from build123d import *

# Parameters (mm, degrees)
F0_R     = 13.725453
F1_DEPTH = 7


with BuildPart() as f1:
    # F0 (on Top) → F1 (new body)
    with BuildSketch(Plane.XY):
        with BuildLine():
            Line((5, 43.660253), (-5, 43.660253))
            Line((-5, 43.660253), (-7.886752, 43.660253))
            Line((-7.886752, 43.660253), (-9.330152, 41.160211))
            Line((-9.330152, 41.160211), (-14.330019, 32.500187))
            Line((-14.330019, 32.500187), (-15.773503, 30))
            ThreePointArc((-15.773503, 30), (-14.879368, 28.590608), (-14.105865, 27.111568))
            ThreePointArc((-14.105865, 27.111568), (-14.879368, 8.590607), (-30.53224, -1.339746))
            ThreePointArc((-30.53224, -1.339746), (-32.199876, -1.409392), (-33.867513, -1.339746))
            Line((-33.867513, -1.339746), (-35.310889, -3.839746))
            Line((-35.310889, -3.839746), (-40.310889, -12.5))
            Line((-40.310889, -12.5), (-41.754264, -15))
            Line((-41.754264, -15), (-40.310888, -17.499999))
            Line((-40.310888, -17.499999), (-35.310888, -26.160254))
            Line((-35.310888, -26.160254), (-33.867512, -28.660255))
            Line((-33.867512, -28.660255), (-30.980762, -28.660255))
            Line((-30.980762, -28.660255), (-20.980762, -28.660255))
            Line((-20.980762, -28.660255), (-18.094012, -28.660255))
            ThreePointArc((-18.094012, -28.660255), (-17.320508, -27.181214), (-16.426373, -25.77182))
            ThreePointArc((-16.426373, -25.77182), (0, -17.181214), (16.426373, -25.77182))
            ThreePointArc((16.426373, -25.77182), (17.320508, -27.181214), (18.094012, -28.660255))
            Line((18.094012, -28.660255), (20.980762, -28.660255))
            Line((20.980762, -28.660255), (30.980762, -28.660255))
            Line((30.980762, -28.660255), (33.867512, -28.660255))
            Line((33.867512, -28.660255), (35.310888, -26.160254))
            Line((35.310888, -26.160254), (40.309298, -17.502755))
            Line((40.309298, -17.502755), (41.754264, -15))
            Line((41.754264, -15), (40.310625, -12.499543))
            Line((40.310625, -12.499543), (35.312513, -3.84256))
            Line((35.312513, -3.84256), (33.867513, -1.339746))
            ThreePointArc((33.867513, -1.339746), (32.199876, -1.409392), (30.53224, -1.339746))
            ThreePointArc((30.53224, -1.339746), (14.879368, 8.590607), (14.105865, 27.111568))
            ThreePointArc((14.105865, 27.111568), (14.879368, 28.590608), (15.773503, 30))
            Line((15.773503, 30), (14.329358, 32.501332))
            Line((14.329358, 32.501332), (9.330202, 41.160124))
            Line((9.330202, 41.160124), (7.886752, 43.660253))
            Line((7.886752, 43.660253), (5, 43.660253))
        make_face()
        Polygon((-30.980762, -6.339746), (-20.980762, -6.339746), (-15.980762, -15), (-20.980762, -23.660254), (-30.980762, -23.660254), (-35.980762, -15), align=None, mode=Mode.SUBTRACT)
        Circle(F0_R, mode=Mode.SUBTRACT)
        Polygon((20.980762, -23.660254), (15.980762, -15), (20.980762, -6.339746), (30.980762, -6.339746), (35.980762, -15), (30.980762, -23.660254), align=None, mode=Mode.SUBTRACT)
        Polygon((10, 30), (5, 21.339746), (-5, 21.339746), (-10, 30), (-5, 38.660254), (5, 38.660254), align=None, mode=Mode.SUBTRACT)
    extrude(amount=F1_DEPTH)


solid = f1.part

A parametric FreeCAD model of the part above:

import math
import FreeCAD as App
import Part
import Sketcher
from FreeCAD import Vector
Q = App.Units.Quantity

doc = App.newDocument("Part")
body = doc.addObject("PartDesign::Body", "Body")

sketch1 = doc.addObject("Sketcher::SketchObject", "Sketch")
body.addObject(sketch1)
sketch1.AttachmentSupport = (doc.XY_Plane, [""])
sketch1.MapMode = "FlatFace"
sketch1.addGeometry([
    Part.LineSegment(Vector(-7.886752, 43.660253, 0), Vector(-9.330152, 41.160211, 0)),
    Part.LineSegment(Vector(-9.330152, 41.160211, 0), Vector(-14.330019, 32.500187, 0)),
    Part.LineSegment(Vector(-14.330019, 32.500187, 0), Vector(-15.773503, 30, 0)),
    Part.ArcOfCircle(Part.Circle(Vector(-32.199731, 18.590685, 0), Vector(0, 0, 1), 19.999836), math.radians(25.216994), math.radians(34.783036)),
    Part.ArcOfCircle(Part.Circle(Vector(-32.199876, 18.590607, 0), Vector(0, 0, 1), 20), math.radians(-85.217022), math.radians(25.217019)),
    Part.ArcOfCircle(Part.Circle(Vector(-32.199877, 18.590766, 0), Vector(0, 0, 1), 20.000158), math.radians(-94.782942), math.radians(-85.217058)),
    Part.LineSegment(Vector(-33.867513, -1.339746, 0), Vector(-35.310889, -3.839746, 0)),
    Part.LineSegment(Vector(-35.310889, -3.839746, 0), Vector(-40.310889, -12.5, 0)),
    Part.LineSegment(Vector(-40.310889, -12.5, 0), Vector(-41.754264, -15, 0)),
    Part.LineSegment(Vector(-41.754264, -15, 0), Vector(-40.310888, -17.499999, 0)),
    Part.LineSegment(Vector(-40.310888, -17.499999, 0), Vector(-35.310888, -26.160254, 0)),
    Part.LineSegment(Vector(-35.310888, -26.160254, 0), Vector(-33.867512, -28.660255, 0)),
    Part.LineSegment(Vector(-33.867512, -28.660255, 0), Vector(-18.094012, -28.660255, 0)),
    Part.ArcOfCircle(Part.Circle(Vector(0.000059, -37.18125, 0), Vector(0, 0, 1), 20.000069), math.radians(145.217026), math.radians(154.782966)),
    Part.ArcOfCircle(Part.Circle(Vector(0, -37.181214, 0), Vector(0, 0, 1), 20), math.radians(34.782986), math.radians(145.217014)),
    Part.ArcOfCircle(Part.Circle(Vector(-0.000059, -37.18125, 0), Vector(0, 0, 1), 20.000069), math.radians(25.217034), math.radians(34.782974)),
    Part.LineSegment(Vector(18.094012, -28.660255, 0), Vector(33.867512, -28.660255, 0)),
    Part.LineSegment(Vector(33.867512, -28.660255, 0), Vector(35.310888, -26.160254, 0)),
    Part.LineSegment(Vector(35.310888, -26.160254, 0), Vector(40.309298, -17.502755, 0)),
    Part.LineSegment(Vector(40.309298, -17.502755, 0), Vector(41.754264, -15, 0)),
    Part.LineSegment(Vector(41.754264, -15, 0), Vector(40.310625, -12.499543, 0)),
    Part.LineSegment(Vector(40.310625, -12.499543, 0), Vector(35.312513, -3.84256, 0)),
    Part.LineSegment(Vector(35.312513, -3.84256, 0), Vector(33.867513, -1.339746, 0)),
    Part.ArcOfCircle(Part.Circle(Vector(32.199877, 18.590766, 0), Vector(0, 0, 1), 20.000158), math.radians(-94.782942), math.radians(-85.217058)),
    Part.ArcOfCircle(Part.Circle(Vector(32.199876, 18.590607, 0), Vector(0, 0, 1), 20), math.radians(154.782981), math.radians(265.217022)),
    Part.ArcOfCircle(Part.Circle(Vector(32.199731, 18.590685, 0), Vector(0, 0, 1), 19.999836), math.radians(145.216964), math.radians(154.783006)),
    Part.LineSegment(Vector(15.773503, 30, 0), Vector(14.329358, 32.501332, 0)),
    Part.LineSegment(Vector(14.329358, 32.501332, 0), Vector(9.330202, 41.160124, 0)),
    Part.LineSegment(Vector(9.330202, 41.160124, 0), Vector(7.886752, 43.660253, 0)),
    Part.LineSegment(Vector(7.886752, 43.660253, 0), Vector(-7.886752, 43.660253, 0)),
    Part.LineSegment(Vector(-35.980762, -15, 0), Vector(-30.980762, -6.339746, 0)),
    Part.LineSegment(Vector(-30.980762, -6.339746, 0), Vector(-20.980762, -6.339746, 0)),
    Part.LineSegment(Vector(-20.980762, -6.339746, 0), Vector(-15.980762, -15, 0)),
    Part.LineSegment(Vector(-15.980762, -15, 0), Vector(-20.980762, -23.660254, 0)),
    Part.LineSegment(Vector(-20.980762, -23.660254, 0), Vector(-30.980762, -23.660254, 0)),
    Part.LineSegment(Vector(-30.980762, -23.660254, 0), Vector(-35.980762, -15, 0)),
    Part.LineSegment(Vector(30.980762, -23.660254, 0), Vector(20.980762, -23.660254, 0)),
    Part.LineSegment(Vector(20.980762, -23.660254, 0), Vector(15.980762, -15, 0)),
    Part.LineSegment(Vector(15.980762, -15, 0), Vector(20.980762, -6.339746, 0)),
    Part.LineSegment(Vector(20.980762, -6.339746, 0), Vector(30.980762, -6.339746, 0)),
    Part.LineSegment(Vector(30.980762, -6.339746, 0), Vector(35.980762, -15, 0)),
    Part.LineSegment(Vector(35.980762, -15, 0), Vector(30.980762, -23.660254, 0)),
    Part.Circle(Vector(0, 0, 0), Vector(0, 0, 1), 13.725453),
    Part.LineSegment(Vector(5, 38.660254, 0), Vector(10, 30, 0)),
    Part.LineSegment(Vector(10, 30, 0), Vector(5, 21.339746, 0)),
    Part.LineSegment(Vector(5, 21.339746, 0), Vector(-5, 21.339746, 0)),
    Part.LineSegment(Vector(-5, 21.339746, 0), Vector(-10, 30, 0)),
    Part.LineSegment(Vector(-10, 30, 0), Vector(-5, 38.660254, 0)),
    Part.LineSegment(Vector(-5, 38.660254, 0), Vector(5, 38.660254, 0)),
], False)
sketch1.addConstraint([
    Sketcher.Constraint("Coincident", 0, 2, 1, 1),
    Sketcher.Constraint("Coincident", 1, 2, 2, 1),
    Sketcher.Constraint("Coincident", 2, 2, 3, 2),
    Sketcher.Constraint("Coincident", 3, 1, 4, 2),
    Sketcher.Constraint("Coincident", 4, 1, 5, 2),
    Sketcher.Constraint("Coincident", 5, 1, 6, 1),
    Sketcher.Constraint("Coincident", 6, 2, 7, 1),
    Sketcher.Constraint("Coincident", 7, 2, 8, 1),
    Sketcher.Constraint("Coincident", 8, 2, 9, 1),
    Sketcher.Constraint("Coincident", 9, 2, 10, 1),
    Sketcher.Constraint("Coincident", 10, 2, 11, 1),
    Sketcher.Constraint("Coincident", 11, 2, 12, 1),
    Sketcher.Constraint("Coincident", 12, 2, 13, 2),
    Sketcher.Constraint("Coincident", 13, 1, 14, 2),
    Sketcher.Constraint("Coincident", 14, 1, 15, 2),
    Sketcher.Constraint("Coincident", 15, 1, 16, 1),
    Sketcher.Constraint("Coincident", 16, 2, 17, 1),
    Sketcher.Constraint("Coincident", 17, 2, 18, 1),
    Sketcher.Constraint("Coincident", 18, 2, 19, 1),
    Sketcher.Constraint("Coincident", 19, 2, 20, 1),
    Sketcher.Constraint("Coincident", 20, 2, 21, 1),
    Sketcher.Constraint("Coincident", 21, 2, 22, 1),
    Sketcher.Constraint("Coincident", 22, 2, 23, 2),
    Sketcher.Constraint("Coincident", 23, 1, 24, 2),
    Sketcher.Constraint("Coincident", 24, 1, 25, 2),
    Sketcher.Constraint("Coincident", 25, 1, 26, 1),
    Sketcher.Constraint("Coincident", 26, 2, 27, 1),
    Sketcher.Constraint("Coincident", 27, 2, 28, 1),
    Sketcher.Constraint("Coincident", 28, 2, 29, 1),
    Sketcher.Constraint("Coincident", 29, 2, 0, 1),
    Sketcher.Constraint("Coincident", 30, 2, 31, 1),
    Sketcher.Constraint("Coincident", 31, 2, 32, 1),
    Sketcher.Constraint("Coincident", 32, 2, 33, 1),
    Sketcher.Constraint("Coincident", 33, 2, 34, 1),
    Sketcher.Constraint("Coincident", 34, 2, 35, 1),
    Sketcher.Constraint("Coincident", 35, 2, 30, 1),
    Sketcher.Constraint("Coincident", 36, 2, 37, 1),
    Sketcher.Constraint("Coincident", 37, 2, 38, 1),
    Sketcher.Constraint("Coincident", 38, 2, 39, 1),
    Sketcher.Constraint("Coincident", 39, 2, 40, 1),
    Sketcher.Constraint("Coincident", 40, 2, 41, 1),
    Sketcher.Constraint("Coincident", 41, 2, 36, 1),
    Sketcher.Constraint("Coincident", 43, 2, 44, 1),
    Sketcher.Constraint("Coincident", 44, 2, 45, 1),
    Sketcher.Constraint("Coincident", 45, 2, 46, 1),
    Sketcher.Constraint("Coincident", 46, 2, 47, 1),
    Sketcher.Constraint("Coincident", 47, 2, 48, 1),
    Sketcher.Constraint("Coincident", 48, 2, 43, 1),
    Sketcher.Constraint("Horizontal", 12),
    Sketcher.Constraint("Horizontal", 16),
    Sketcher.Constraint("Horizontal", 29),
    Sketcher.Constraint("Horizontal", 31),
    Sketcher.Constraint("Horizontal", 34),
    Sketcher.Constraint("Horizontal", 36),
    Sketcher.Constraint("Horizontal", 39),
    Sketcher.Constraint("Horizontal", 45),
    Sketcher.Constraint("Horizontal", 48),
    Sketcher.Constraint("Coincident", 42, 3, -1, 1),
    Sketcher.Constraint("PointOnObject", 14, 3, -2),
    Sketcher.Constraint("Radius", 4, Q("20 mm")),
    Sketcher.Constraint("Radius", 14, Q("20 mm")),
    Sketcher.Constraint("Radius", 24, Q("20 mm")),
    Sketcher.Constraint("DistanceX", 31, 1, 31, 2, Q("10 mm")),
    Sketcher.Constraint("DistanceX", 34, 2, 34, 1, Q("10 mm")),
    Sketcher.Constraint("DistanceX", 36, 2, 36, 1, Q("10 mm")),
    Sketcher.Constraint("DistanceX", 39, 1, 39, 2, Q("10 mm")),
    Sketcher.Constraint("DistanceX", 45, 2, 45, 1, Q("10 mm")),
    Sketcher.Constraint("DistanceX", 48, 1, 48, 2, Q("10 mm")),
    Sketcher.Constraint("Distance", 7, Q("10 mm")),
    Sketcher.Constraint("Distance", 10, Q("10.000001 mm")),
    Sketcher.Constraint("Distance", 30, Q("10 mm")),
    Sketcher.Constraint("Distance", 32, Q("10 mm")),
    Sketcher.Constraint("Distance", 33, Q("10 mm")),
    Sketcher.Constraint("Distance", 35, Q("10 mm")),
    Sketcher.Constraint("Distance", 37, Q("10 mm")),
    Sketcher.Constraint("Distance", 38, Q("10 mm")),
    Sketcher.Constraint("Distance", 40, Q("10 mm")),
    Sketcher.Constraint("Distance", 41, Q("10 mm")),
    Sketcher.Constraint("Distance", 43, Q("10 mm")),
    Sketcher.Constraint("Distance", 44, Q("10 mm")),
    Sketcher.Constraint("Distance", 46, Q("10 mm")),
    Sketcher.Constraint("Distance", 47, Q("10 mm")),
    Sketcher.Constraint("DistanceY", -1, 1, 2, 2, Q("30 mm")),
    Sketcher.Constraint("DistanceY", 8, 2, -1, 1, Q("15 mm")),
    Sketcher.Constraint("DistanceY", 19, 2, -1, 1, Q("15 mm")),
    Sketcher.Constraint("DistanceY", -1, 1, 25, 1, Q("30 mm")),
    Sketcher.Constraint("DistanceY", 32, 2, -1, 1, Q("15 mm")),
    Sketcher.Constraint("DistanceY", 35, 2, -1, 1, Q("15 mm")),
    Sketcher.Constraint("DistanceY", 37, 2, -1, 1, Q("15 mm")),
    Sketcher.Constraint("DistanceY", 40, 2, -1, 1, Q("15 mm")),
    Sketcher.Constraint("DistanceX", -1, 1, 43, 2, Q("10 mm")),
    Sketcher.Constraint("DistanceY", -1, 1, 43, 2, Q("30 mm")),
    Sketcher.Constraint("DistanceX", -1, 1, 44, 2, Q("5 mm")),
    Sketcher.Constraint("DistanceX", 46, 2, -1, 1, Q("10 mm")),
    Sketcher.Constraint("DistanceX", 7, 2, 6, 2, Q("5 mm")),
    Sketcher.Constraint("DistanceY", 9, 2, 7, 2, Q("4.999999 mm")),
    Sketcher.Constraint("DistanceX", 9, 2, 6, 2, Q("4.999999 mm")),
    Sketcher.Constraint("DistanceX", 9, 2, 10, 2, Q("5 mm")),
    Sketcher.Constraint("DistanceY", 30, 2, 4, 1, Q("5 mm")),
    Sketcher.Constraint("DistanceY", 30, 2, 5, 1, Q("5 mm")),
    Sketcher.Constraint("DistanceX", 31, 2, 32, 2, Q("5 mm")),
    Sketcher.Constraint("DistanceY", 12, 2, 33, 2, Q("5.000001 mm")),
    Sketcher.Constraint("DistanceY", 15, 1, 36, 2, Q("5.000001 mm")),
    Sketcher.Constraint("DistanceX", 37, 2, 36, 2, Q("5 mm")),
    Sketcher.Constraint("DistanceY", 38, 2, 23, 1, Q("5 mm")),
    Sketcher.Constraint("DistanceY", 38, 2, 22, 2, Q("5 mm")),
    Sketcher.Constraint("DistanceY", 47, 2, 29, 2, Q("4.999999 mm")),
    Sketcher.Constraint("DistanceY", 7, 2, -1, 1, Q("12.5 mm")),
    Sketcher.Constraint("DistanceY", 16, 2, 17, 2, Q("2.500001 mm")),
    Sketcher.Constraint("Distance", 22, Q("2.890001 mm")),
    Sketcher.Constraint("Radius", 5, Q("20.000158 mm")),
    Sketcher.Constraint("Radius", 13, Q("20.000069 mm")),
    Sketcher.Constraint("Radius", 15, Q("20.000069 mm")),
    Sketcher.Constraint("Radius", 23, Q("20.000158 mm")),
    Sketcher.Constraint("Diameter", 42, Q("27.450906 mm")),
    Sketcher.Constraint("DistanceX", 12, 1, 12, 2, Q("15.7735 mm")),
    Sketcher.Constraint("DistanceX", 16, 1, 16, 2, Q("15.7735 mm")),
    Sketcher.Constraint("Radius", 3, Q("19.999836 mm")),
    Sketcher.Constraint("Radius", 25, Q("19.999836 mm")),
    Sketcher.Constraint("DistanceX", 22, 2, 21, 2, Q("1.445 mm")),
    Sketcher.Constraint("Distance", 0, Q("2.8868 mm")),
    Sketcher.Constraint("Distance", 28, Q("2.8869 mm")),
    Sketcher.Constraint("DistanceY", 14, 3, 3, 3, Q("55.771899 mm")),
    Sketcher.Constraint("DistanceY", 5, 3, 3, 1, Q("8.520802 mm")),
    Sketcher.Constraint("DistanceY", 17, 2, 18, 2, Q("8.657499 mm")),
    Sketcher.Constraint("DistanceY", 23, 3, 24, 1, Q("8.520802 mm")),
    Sketcher.Constraint("DistanceX", 27, 2, 25, 1, Q("6.443301 mm")),
    Sketcher.Constraint("DistanceX", 0, 2, 29, 2, Q("1.4434 mm")),
    Sketcher.Constraint("DistanceX", 27, 2, 43, 2, Q("0.669798 mm")),
    Sketcher.Constraint("Distance", 6, Q("2.886752 mm")),
    Sketcher.Constraint("Distance", 8, Q("2.886751 mm")),
    Sketcher.Constraint("Distance", 18, Q("9.996819 mm")),
    Sketcher.Constraint("Distance", 20, Q("2.887279 mm")),
    Sketcher.Constraint("Distance", 26, Q("2.88829 mm")),
    Sketcher.Constraint("Distance", 27, Q("9.998312 mm")),
    Sketcher.Constraint("DistanceX", 29, 2, 29, 1, Q("15.773504 mm")),
    Sketcher.Constraint("DistanceX", 3, 3, -1, 1, Q("32.199731 mm")),
    Sketcher.Constraint("DistanceY", 13, 3, -1, 1, Q("37.18125 mm")),
    Sketcher.Constraint("DistanceY", 15, 3, -1, 1, Q("37.18125 mm")),
    Sketcher.Constraint("DistanceX", -1, 1, 25, 3, Q("32.199731 mm")),
    Sketcher.Constraint("DistanceX", 1, 2, -1, 1, Q("14.330019 mm")),
    Sketcher.Constraint("DistanceY", -1, 1, 3, 1, Q("27.111568 mm")),
    Sketcher.Constraint("DistanceX", 4, 1, -1, 1, Q("30.53224 mm")),
    Sketcher.Constraint("DistanceX", 11, 2, -1, 1, Q("33.867512 mm")),
    Sketcher.Constraint("DistanceY", 13, 1, -1, 1, Q("25.77182 mm")),
    Sketcher.Constraint("DistanceY", 14, 1, -1, 1, Q("25.77182 mm")),
    Sketcher.Constraint("DistanceX", -1, 1, 23, 1, Q("30.53224 mm")),
    Sketcher.Constraint("DistanceY", -1, 1, 26, 2, Q("32.501332 mm")),
    Sketcher.Constraint("DistanceX", 30, 2, -1, 1, Q("30.980762 mm")),
    Sketcher.Constraint("DistanceX", -1, 1, 36, 2, Q("20.980762 mm")),
    Sketcher.Constraint("DistanceY", 4, 3, 23, 3, Q("0.000159 mm")),
    Sketcher.Constraint("DistanceY", 5, 3, 1, 2, Q("13.909421 mm")),
    Sketcher.Constraint("DistanceX", 13, 3, 17, 2, Q("35.310829 mm")),
    Sketcher.Constraint("DistanceX", 15, 1, 19, 2, Q("23.660252 mm")),
    Sketcher.Constraint("DistanceX", 20, 2, 19, 2, Q("1.443639 mm")),
])
pad1 = doc.addObject("PartDesign::Pad", "Pad")
body.addObject(pad1)
pad1.Profile = sketch1
pad1.Length = 7

doc.recompute()
